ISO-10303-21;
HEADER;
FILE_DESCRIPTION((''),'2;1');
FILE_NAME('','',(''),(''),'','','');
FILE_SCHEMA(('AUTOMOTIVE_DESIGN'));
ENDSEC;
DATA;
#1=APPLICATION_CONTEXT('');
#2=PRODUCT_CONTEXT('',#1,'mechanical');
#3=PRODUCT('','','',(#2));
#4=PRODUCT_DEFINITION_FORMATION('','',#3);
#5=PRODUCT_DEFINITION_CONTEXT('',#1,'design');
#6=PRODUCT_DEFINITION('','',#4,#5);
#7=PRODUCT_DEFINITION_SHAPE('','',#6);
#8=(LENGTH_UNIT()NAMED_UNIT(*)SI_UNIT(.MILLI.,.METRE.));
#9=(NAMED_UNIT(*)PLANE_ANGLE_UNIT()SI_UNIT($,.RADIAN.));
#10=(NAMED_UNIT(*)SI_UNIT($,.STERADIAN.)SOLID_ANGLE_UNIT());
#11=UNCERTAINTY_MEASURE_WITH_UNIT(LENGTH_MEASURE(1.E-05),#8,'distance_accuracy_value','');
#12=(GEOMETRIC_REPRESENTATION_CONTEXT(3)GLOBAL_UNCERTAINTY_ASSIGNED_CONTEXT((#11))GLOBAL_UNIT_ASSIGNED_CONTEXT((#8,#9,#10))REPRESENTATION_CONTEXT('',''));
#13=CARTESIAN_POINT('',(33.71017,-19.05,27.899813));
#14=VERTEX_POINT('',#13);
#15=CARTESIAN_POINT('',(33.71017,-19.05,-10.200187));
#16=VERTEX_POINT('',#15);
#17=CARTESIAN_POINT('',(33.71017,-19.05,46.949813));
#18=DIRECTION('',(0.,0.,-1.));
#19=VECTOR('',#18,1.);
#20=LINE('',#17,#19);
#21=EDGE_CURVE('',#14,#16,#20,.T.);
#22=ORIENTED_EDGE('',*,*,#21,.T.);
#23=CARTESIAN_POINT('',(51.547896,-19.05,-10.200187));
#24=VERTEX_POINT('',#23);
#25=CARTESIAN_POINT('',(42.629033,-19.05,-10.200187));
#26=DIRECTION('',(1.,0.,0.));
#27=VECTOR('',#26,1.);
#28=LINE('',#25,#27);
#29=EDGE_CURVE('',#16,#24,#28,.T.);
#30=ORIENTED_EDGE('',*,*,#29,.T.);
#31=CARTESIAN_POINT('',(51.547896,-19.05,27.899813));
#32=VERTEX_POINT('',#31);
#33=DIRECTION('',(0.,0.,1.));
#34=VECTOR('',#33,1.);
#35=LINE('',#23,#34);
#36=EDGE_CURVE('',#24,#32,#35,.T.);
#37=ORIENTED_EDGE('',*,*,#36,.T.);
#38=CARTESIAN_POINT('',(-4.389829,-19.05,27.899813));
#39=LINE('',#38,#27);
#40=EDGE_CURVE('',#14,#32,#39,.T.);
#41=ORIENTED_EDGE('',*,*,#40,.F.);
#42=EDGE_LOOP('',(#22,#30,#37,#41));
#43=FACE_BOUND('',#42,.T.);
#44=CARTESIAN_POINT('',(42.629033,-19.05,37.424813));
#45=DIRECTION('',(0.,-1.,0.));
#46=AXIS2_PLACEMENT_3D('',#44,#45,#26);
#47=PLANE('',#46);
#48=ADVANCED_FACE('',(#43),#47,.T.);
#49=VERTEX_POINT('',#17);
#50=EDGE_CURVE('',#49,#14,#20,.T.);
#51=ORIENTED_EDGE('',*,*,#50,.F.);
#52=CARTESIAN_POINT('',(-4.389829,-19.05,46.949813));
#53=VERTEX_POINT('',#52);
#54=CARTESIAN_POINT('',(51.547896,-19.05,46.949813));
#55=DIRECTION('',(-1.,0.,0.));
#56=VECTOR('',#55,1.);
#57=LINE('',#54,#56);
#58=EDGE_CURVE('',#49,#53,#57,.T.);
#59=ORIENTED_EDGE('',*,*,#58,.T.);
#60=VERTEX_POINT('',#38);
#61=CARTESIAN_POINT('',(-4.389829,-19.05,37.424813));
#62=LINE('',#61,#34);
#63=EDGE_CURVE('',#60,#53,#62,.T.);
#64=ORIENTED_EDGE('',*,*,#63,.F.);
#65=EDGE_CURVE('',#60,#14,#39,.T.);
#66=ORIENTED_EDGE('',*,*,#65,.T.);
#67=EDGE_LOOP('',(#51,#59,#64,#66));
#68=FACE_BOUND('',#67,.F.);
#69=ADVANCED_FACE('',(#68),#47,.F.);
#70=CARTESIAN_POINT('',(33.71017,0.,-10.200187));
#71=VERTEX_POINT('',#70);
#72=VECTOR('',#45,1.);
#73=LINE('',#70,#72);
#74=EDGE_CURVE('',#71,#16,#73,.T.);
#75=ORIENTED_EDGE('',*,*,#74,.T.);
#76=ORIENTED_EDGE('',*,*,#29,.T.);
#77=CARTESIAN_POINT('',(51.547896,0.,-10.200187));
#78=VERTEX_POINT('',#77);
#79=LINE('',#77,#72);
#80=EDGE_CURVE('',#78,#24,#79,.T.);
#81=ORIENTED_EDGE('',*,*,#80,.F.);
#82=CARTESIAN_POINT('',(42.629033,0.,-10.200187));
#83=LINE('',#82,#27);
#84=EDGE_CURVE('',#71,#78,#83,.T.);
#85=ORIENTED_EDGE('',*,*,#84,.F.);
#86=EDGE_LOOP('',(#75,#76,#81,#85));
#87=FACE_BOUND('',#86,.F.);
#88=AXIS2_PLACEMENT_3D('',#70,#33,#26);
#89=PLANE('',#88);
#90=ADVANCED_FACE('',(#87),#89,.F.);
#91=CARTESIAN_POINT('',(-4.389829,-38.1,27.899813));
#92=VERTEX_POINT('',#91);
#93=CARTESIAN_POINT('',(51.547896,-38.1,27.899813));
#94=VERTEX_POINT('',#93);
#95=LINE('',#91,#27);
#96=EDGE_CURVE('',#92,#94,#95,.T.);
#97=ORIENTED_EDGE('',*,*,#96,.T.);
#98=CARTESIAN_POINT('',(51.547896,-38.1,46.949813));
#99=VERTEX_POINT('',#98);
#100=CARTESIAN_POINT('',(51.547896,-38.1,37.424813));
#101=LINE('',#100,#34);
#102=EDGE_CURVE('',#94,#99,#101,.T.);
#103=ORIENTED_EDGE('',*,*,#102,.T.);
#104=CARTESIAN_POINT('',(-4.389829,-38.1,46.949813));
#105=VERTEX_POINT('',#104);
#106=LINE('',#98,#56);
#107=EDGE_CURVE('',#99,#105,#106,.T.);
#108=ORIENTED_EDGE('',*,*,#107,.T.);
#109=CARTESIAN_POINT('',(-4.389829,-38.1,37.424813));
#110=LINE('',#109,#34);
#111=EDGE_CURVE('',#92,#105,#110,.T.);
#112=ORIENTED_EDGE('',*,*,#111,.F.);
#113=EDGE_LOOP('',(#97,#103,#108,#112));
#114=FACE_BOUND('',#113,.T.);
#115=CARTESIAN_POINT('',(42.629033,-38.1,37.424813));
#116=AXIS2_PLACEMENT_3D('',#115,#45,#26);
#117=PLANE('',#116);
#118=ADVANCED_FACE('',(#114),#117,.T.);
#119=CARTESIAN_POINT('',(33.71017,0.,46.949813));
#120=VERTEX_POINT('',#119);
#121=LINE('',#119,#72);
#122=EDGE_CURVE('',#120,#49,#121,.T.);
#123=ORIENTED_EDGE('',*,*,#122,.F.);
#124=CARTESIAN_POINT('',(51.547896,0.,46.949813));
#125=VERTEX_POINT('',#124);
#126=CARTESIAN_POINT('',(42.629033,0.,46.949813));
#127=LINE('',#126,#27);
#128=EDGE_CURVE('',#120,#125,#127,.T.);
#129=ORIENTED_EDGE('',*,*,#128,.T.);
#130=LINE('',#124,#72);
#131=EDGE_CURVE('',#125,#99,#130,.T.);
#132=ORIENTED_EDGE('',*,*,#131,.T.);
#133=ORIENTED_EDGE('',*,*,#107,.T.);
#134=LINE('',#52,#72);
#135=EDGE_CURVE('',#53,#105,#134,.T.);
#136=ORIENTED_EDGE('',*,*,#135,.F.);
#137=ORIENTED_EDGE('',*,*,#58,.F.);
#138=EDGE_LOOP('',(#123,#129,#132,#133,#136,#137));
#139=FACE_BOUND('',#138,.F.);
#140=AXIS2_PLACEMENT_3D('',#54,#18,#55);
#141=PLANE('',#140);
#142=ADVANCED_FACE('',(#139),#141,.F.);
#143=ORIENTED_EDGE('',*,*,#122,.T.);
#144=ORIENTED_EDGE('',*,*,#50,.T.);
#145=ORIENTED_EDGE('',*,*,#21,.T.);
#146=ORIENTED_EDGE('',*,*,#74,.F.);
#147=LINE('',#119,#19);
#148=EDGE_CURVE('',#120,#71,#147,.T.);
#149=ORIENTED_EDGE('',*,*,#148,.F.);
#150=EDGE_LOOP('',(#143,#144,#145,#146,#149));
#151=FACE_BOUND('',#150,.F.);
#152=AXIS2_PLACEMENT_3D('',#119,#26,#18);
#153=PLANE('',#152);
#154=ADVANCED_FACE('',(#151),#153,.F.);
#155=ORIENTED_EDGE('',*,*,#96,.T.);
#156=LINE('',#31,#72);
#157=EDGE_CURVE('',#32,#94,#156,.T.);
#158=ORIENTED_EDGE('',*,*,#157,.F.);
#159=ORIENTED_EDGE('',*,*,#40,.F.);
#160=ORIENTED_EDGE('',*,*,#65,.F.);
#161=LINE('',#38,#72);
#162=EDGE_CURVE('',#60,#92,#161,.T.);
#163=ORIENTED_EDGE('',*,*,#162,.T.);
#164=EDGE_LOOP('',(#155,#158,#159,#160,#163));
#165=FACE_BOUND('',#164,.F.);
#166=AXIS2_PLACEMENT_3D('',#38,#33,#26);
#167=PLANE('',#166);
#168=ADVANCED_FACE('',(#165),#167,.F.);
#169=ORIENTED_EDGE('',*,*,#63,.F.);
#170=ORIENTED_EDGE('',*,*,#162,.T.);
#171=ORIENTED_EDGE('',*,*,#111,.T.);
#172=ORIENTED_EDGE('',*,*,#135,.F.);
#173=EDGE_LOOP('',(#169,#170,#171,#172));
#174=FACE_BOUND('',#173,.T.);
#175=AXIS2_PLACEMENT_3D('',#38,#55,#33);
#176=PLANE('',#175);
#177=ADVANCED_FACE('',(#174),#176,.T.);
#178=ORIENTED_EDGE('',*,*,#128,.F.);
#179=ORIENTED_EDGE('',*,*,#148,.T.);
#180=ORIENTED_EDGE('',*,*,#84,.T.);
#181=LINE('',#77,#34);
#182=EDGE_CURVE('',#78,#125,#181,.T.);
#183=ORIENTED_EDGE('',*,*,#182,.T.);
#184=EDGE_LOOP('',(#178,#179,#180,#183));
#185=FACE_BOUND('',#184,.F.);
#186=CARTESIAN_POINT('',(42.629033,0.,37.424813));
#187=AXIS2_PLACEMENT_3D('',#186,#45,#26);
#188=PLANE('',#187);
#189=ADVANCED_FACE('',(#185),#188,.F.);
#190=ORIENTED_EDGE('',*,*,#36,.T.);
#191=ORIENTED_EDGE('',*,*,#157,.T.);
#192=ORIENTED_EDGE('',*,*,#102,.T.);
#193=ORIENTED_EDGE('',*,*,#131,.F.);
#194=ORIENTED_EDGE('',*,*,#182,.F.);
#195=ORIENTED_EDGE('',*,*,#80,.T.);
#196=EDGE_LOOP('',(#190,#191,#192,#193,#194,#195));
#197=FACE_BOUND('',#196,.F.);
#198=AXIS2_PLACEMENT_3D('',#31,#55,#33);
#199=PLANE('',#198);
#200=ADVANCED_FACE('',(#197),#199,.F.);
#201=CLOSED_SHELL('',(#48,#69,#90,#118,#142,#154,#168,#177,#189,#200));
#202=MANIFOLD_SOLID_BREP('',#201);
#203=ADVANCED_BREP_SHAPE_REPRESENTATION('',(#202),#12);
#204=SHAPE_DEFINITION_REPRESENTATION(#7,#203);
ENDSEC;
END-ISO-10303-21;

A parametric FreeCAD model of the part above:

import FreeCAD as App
import Part
import Sketcher

V = App.Vector
Q = App.Units.Quantity


def add_polygon(sketch, points):
    """Adds a closed chain of lines whose ends are joined by coincident constraints."""
    first, n = sketch.GeometryCount, len(points)
    for a, b in zip(points, points[1:] + points[:1]):
        sketch.addGeometry(Part.LineSegment(App.Vector(*a, 0), App.Vector(*b, 0)), False)
    for i in range(n):
        sketch.addConstraint(Sketcher.Constraint("Coincident", first + i, 2, first + (i + 1) % n, 1))

doc = App.newDocument("Part")
params = doc.addObject("Spreadsheet::Sheet", "Params")
for row, (alias, value) in enumerate([
    ("sketch1_height", "2.25 in"),
    ("pad1_length", "0.75 in"),
    ("sketch2_height", "0.75 in"),
    ("pad2_length", "0.75 in"),
], start=1):
    params.set(f"A{row}", alias)
    params.set(f"B{row}", "=" + value)
    params.setAlias(f"B{row}", alias)

body = doc.addObject("PartDesign::Body", "Body")

# Sketch on XZ plane
sketch1 = body.newObject("Sketcher::SketchObject", "Sketch")
sketch1.AttachmentSupport = (doc.getObject("XZ_Plane"), [""])
sketch1.MapMode = "FlatFace"
add_polygon(sketch1, [(34, 47), (34, -10), (52, -10), (52, 47)])  # lines 0-3
sketch1.addConstraint(Sketcher.Constraint("Vertical", 0))
sketch1.addConstraint(Sketcher.Constraint("Horizontal", 1))
sketch1.addConstraint(Sketcher.Constraint("Vertical", 2))
sketch1.addConstraint(Sketcher.Constraint("Horizontal", 3))
sketch1.addConstraint(Sketcher.Constraint("DistanceY", 0, 2, 0, 1, Q("2.25 in")))
sketch1.addConstraint(Sketcher.Constraint("DistanceX", 1, 1, 1, 2, 17.837725))
sketch1.addConstraint(Sketcher.Constraint("DistanceX", -1, 1, 0, 2, 33.71017))
sketch1.addConstraint(Sketcher.Constraint("DistanceY", 0, 2, -1, 1, 10.200187))
sketch1.setExpression("Constraints[8]", "Params.sketch1_height")
pad1 = body.newObject("PartDesign::Pad", "Pad")
pad1.Profile = sketch1
pad1.setExpression("Length", "Params.pad1_length")

# Sketch on XZ plane
sketch2 = body.newObject("Sketcher::SketchObject", "Sketch001")
sketch2.AttachmentSupport = (doc.getObject("XZ_Plane"), [""])
sketch2.MapMode = "FlatFace"
sketch2.AttachmentOffset = App.Placement(V(0, 0, 0.75 * 25.4), App.Rotation())
add_polygon(sketch2, [(52, 28), (52, 47), (-4, 47), (-4, 28)])  # lines 0-3
sketch2.addConstraint(Sketcher.Constraint("Vertical", 0))
sketch2.addConstraint(Sketcher.Constraint("Horizontal", 1))
sketch2.addConstraint(Sketcher.Constraint("Vertical", 2))
sketch2.addConstraint(Sketcher.Constraint("Horizontal", 3))
sketch2.addConstraint(Sketcher.Constraint("DistanceY", 0, 1, 0, 2, Q("0.75 in")))
sketch2.addConstraint(Sketcher.Constraint("DistanceX", 1, 2, 1, 1, 55.937725))
sketch2.addConstraint(Sketcher.Constraint("DistanceX", 1, 2, -1, 1, 4.389829))
sketch2.addConstraint(Sketcher.Constraint("DistanceY", -1, 1, 0, 2, 46.949813))
sketch2.setExpression("Constraints[8]", "Params.sketch2_height")
pad2 = body.newObject("PartDesign::Pad", "Pad001")
pad2.Profile = sketch2
pad2.setExpression("Length", "Params.pad2_length")

doc.recompute()
